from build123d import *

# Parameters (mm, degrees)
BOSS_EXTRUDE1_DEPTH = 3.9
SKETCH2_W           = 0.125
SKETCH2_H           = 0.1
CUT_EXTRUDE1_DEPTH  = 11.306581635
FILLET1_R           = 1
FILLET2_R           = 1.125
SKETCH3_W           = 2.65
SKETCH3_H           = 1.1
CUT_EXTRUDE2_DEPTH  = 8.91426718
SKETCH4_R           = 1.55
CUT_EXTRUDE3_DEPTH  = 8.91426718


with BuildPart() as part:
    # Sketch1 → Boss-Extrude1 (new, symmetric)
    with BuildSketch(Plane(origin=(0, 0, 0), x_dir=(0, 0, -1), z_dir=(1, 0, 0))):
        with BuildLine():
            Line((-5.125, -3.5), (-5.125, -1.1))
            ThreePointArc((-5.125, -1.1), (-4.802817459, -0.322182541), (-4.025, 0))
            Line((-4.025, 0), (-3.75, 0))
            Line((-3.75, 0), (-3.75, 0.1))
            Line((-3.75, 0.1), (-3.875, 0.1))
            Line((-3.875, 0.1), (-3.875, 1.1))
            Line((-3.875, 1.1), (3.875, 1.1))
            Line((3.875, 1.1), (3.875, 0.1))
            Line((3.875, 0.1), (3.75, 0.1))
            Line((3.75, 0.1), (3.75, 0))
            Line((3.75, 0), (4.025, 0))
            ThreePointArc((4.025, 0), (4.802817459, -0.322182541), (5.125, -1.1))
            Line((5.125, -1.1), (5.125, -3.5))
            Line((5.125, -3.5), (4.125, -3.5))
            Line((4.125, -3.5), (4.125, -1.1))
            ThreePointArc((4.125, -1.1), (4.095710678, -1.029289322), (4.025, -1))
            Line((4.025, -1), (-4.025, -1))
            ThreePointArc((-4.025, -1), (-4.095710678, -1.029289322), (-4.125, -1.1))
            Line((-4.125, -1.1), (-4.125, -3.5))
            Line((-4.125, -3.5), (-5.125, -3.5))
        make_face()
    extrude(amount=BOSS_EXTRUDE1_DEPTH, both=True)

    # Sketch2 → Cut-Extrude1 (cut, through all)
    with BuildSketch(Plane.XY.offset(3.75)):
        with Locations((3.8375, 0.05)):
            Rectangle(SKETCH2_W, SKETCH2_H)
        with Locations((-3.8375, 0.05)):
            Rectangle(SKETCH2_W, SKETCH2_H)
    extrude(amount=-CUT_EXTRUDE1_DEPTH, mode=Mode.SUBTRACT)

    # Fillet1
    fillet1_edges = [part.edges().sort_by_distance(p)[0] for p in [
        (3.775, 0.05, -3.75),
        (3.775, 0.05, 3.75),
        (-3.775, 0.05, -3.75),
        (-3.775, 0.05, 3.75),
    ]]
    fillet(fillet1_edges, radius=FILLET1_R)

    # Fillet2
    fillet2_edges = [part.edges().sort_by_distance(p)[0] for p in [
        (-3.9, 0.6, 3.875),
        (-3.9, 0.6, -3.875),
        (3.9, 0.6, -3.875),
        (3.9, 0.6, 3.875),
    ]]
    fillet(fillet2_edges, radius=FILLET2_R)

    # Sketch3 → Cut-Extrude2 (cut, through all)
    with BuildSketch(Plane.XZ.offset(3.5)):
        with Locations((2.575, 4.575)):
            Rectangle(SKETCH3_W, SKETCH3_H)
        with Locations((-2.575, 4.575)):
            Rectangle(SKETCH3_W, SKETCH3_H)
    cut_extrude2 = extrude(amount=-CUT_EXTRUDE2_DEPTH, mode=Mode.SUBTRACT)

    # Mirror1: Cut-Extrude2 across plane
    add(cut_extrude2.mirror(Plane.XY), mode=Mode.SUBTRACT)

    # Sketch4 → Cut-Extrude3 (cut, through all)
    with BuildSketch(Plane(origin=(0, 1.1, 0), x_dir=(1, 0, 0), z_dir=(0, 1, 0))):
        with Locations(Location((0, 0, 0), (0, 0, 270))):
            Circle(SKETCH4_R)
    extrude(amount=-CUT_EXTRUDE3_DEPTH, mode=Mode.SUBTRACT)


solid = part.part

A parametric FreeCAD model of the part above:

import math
import FreeCAD as App
import Part
import Sketcher
from FreeCAD import Vector


def edges_at(feature, points):
    """Names of the edges that pass closest to the given points."""
    edges = feature.Shape.Edges
    near = lambda p: min(range(len(edges)), key=lambda i: edges[i].distToShape(Part.Vertex(*p))[0])
    return sorted({f"Edge{near(p) + 1}" for p in points})

doc = App.newDocument("Part")
params = doc.addObject("Spreadsheet::Sheet", "Params")
for row, (alias, value) in enumerate([
    ("sketch1_radius", "0.1 mm"),
    ("sketch1_radius2", "1.1 mm"),
    ("sketch1_width", "2.4 mm"),
    ("sketch1_width2", "0.1 mm"),
    ("sketch1_height", "8.05 mm"),
    ("pad1_length", "7.8 mm"),
    ("sketch2_height", "0.1 mm"),
    ("fillet_radius", "1 mm"),
    ("fillet2_radius", "1.125 mm"),
    ("sketch3_height", "1.1 mm"),
    ("sketch3_width", "2.65 mm"),
    ("sketch4_diameter", "3.1 mm"),
], start=1):
    params.set(f"A{row}", alias)
    params.set(f"B{row}", "=" + value)
    params.setAlias(f"B{row}", alias)

body = doc.addObject("PartDesign::Body", "Body")

# Sketch on YZ plane
sketch1 = body.newObject("Sketcher::SketchObject", "Sketch")
sketch1.AttachmentSupport = (doc.getObject("YZ_Plane"), [""])
sketch1.MapMode = "FlatFace"
sketch1.addGeometry(Part.LineSegment(Vector(-1.1, 5.125, 0), Vector(-3.5, 5.125, 0)), False)
sketch1.addGeometry(Part.LineSegment(Vector(-3.5, 5.125, 0), Vector(-3.5, 4.125, 0)), False)
sketch1.addGeometry(Part.LineSegment(Vector(-3.5, 4.125, 0), Vector(-1.1, 4.125, 0)), False)
sketch1.addGeometry(Part.ArcOfCircle(Part.Circle(Vector(-1.1, 4.025, 0), Vector(0, 0, 1), 0.1), math.radians(0), math.radians(90)), False)
sketch1.addGeometry(Part.LineSegment(Vector(-1, 4.025, 0), Vector(-1, -4.025, 0)), False)
sketch1.addGeometry(Part.ArcOfCircle(Part.Circle(Vector(-1.1, -4.025, 0), Vector(0, 0, 1), 0.1), math.radians(-90), math.radians(0)), False)
sketch1.addGeometry(Part.LineSegment(Vector(-1.1, -4.125, 0), Vector(-3.5, -4.125, 0)), False)
sketch1.addGeometry(Part.LineSegment(Vector(-3.5, -4.125, 0), Vector(-3.5, -5.125, 0)), False)
sketch1.addGeometry(Part.LineSegment(Vector(-3.5, -5.125, 0), Vector(-1.1, -5.125, 0)), False)
sketch1.addGeometry(Part.ArcOfCircle(Part.Circle(Vector(-1.1, -4.025, 0), Vector(0, 0, 1), 1.1), math.radians(-90), math.radians(0)), False)
sketch1.addGeometry(Part.LineSegment(Vector(0, -4.025, 0), Vector(0, -3.75, 0)), False)
sketch1.addGeometry(Part.LineSegment(Vector(0, -3.75, 0), Vector(0.1, -3.75, 0)), False)
sketch1.addGeometry(Part.LineSegment(Vector(0.1, -3.75, 0), Vector(0.1, -3.875, 0)), False)
sketch1.addGeometry(Part.LineSegment(Vector(0.1, -3.875, 0), Vector(1.1, -3.875, 0)), False)
sketch1.addGeometry(Part.LineSegment(Vector(1.1, -3.875, 0), Vector(1.1, 3.875, 0)), False)
sketch1.addGeometry(Part.LineSegment(Vector(1.1, 3.875, 0), Vector(0.1, 3.875, 0)), False)
sketch1.addGeometry(Part.LineSegment(Vector(0.1, 3.875, 0), Vector(0.1, 3.75, 0)), False)
sketch1.addGeometry(Part.LineSegment(Vector(0.1, 3.75, 0), Vector(0, 3.75, 0)), False)
sketch1.addGeometry(Part.LineSegment(Vector(0, 3.75, 0), Vector(0, 4.025, 0)), False)
sketch1.addGeometry(Part.ArcOfCircle(Part.Circle(Vector(-1.1, 4.025, 0), Vector(0, 0, 1), 1.1), math.radians(0), math.radians(90)), False)
sketch1.addConstraint(Sketcher.Constraint("Coincident", 0, 2, 1, 1))
sketch1.addConstraint(Sketcher.Constraint("Coincident", 1, 2, 2, 1))
sketch1.addConstraint(Sketcher.Constraint("Tangent", 2, 2, 3, 2))
sketch1.addConstraint(Sketcher.Constraint("Tangent", 3, 1, 4, 1))
sketch1.addConstraint(Sketcher.Constraint("Tangent", 4, 2, 5, 2))
sketch1.addConstraint(Sketcher.Constraint("Tangent", 5, 1, 6, 1))
sketch1.addConstraint(Sketcher.Constraint("Coincident", 6, 2, 7, 1))
sketch1.addConstraint(Sketcher.Constraint("Coincident", 7, 2, 8, 1))
sketch1.addConstraint(Sketcher.Constraint("Tangent", 8, 2, 9, 1))
sketch1.addConstraint(Sketcher.Constraint("Tangent", 9, 2, 10, 1))
sketch1.addConstraint(Sketcher.Constraint("Coincident", 10, 2, 11, 1))
sketch1.addConstraint(Sketcher.Constraint("Coincident", 11, 2, 12, 1))
sketch1.addConstraint(Sketcher.Constraint("Coincident", 12, 2, 13, 1))
sketch1.addConstraint(Sketcher.Constraint("Coincident", 13, 2, 14, 1))
sketch1.addConstraint(Sketcher.Constraint("Coincident", 14, 2, 15, 1))
sketch1.addConstraint(Sketcher.Constraint("Coincident", 15, 2, 16, 1))
sketch1.addConstraint(Sketcher.Constraint("Coincident", 16, 2, 17, 1))
sketch1.addConstraint(Sketcher.Constraint("Coincident", 17, 2, 18, 1))
sketch1.addConstraint(Sketcher.Constraint("Tangent", 18, 2, 19, 1))
sketch1.addConstraint(Sketcher.Constraint("Tangent", 19, 2, 0, 1))
sketch1.addConstraint(Sketcher.Constraint("Horizontal", 0))
sketch1.addConstraint(Sketcher.Constraint("Vertical", 1))
sketch1.addConstraint(Sketcher.Constraint("Horizontal", 2))
sketch1.addConstraint(Sketcher.Constraint("Vertical", 4))
sketch1.addConstraint(Sketcher.Constraint("Horizontal", 6))
sketch1.addConstraint(Sketcher.Constraint("Vertical", 7))
sketch1.addConstraint(Sketcher.Constraint("Horizontal", 8))
sketch1.addConstraint(Sketcher.Constraint("Vertical", 10))
sketch1.addConstraint(Sketcher.Constraint("Horizontal", 11))
sketch1.addConstraint(Sketcher.Constraint("Vertical", 12))
sketch1.addConstraint(Sketcher.Constraint("Horizontal", 13))
sketch1.addConstraint(Sketcher.Constraint("Vertical", 14))
sketch1.addConstraint(Sketcher.Constraint("Horizontal", 15))
sketch1.addConstraint(Sketcher.Constraint("Vertical", 16))
sketch1.addConstraint(Sketcher.Constraint("Horizontal", 17))
sketch1.addConstraint(Sketcher.Constraint("Vertical", 18))
sketch1.addConstraint(Sketcher.Constraint("Coincident", 9, 3, 5, 3))
sketch1.addConstraint(Sketcher.Constraint("Coincident", 19, 3, 3, 3))
sketch1.addConstraint(Sketcher.Constraint("Equal", 3, 5))
sketch1.addConstraint(Sketcher.Constraint("Equal", 9, 19))
sketch1.addConstraint(Sketcher.Constraint("Symmetric", 10, 2, 17, 2, -1, 1))
sketch1.addConstraint(Sketcher.Constraint("Symmetric", 1, 2, 6, 2, -1))
sketch1.addConstraint(Sketcher.Constraint("Symmetric", 12, 2, 15, 2, -1))
sketch1.addConstraint(Sketcher.Constraint("Equal", 15, 1))
sketch1.addConstraint(Sketcher.Constraint("Radius", 3, 0.1))
sketch1.addConstraint(Sketcher.Constraint("Radius", 9, 1.1))
sketch1.addConstraint(Sketcher.Constraint("DistanceX", 0, 2, 0, 1, 2.4))
sketch1.addConstraint(Sketcher.Constraint("DistanceX", 11, 1, 11, 2, 0.1))
sketch1.addConstraint(Sketcher.Constraint("DistanceY", 4, 2, 4, 1, 8.05))
sketch1.addConstraint(Sketcher.Constraint("DistanceY", 14, 1, 14, 2, 7.75))
sketch1.addConstraint(Sketcher.Constraint("DistanceY", 10, 1, 10, 2, 0.275))
sketch1.setExpression("Constraints[44]", "Params.sketch1_radius")
sketch1.setExpression("Constraints[45]", "Params.sketch1_radius2")
sketch1.setExpression("Constraints[46]", "Params.sketch1_width")
sketch1.setExpression("Constraints[47]", "Params.sketch1_width2")
sketch1.setExpression("Constraints[48]", "Params.sketch1_height")
pad1 = body.newObject("PartDesign::Pad", "Pad")
pad1.Profile = sketch1
pad1.setExpression("Length", "Params.pad1_length")
pad1.Midplane = True

# Sketch on XY plane
sketch2 = body.newObject("Sketcher::SketchObject", "Sketch001")
sketch2.AttachmentSupport = (doc.getObject("XY_Plane"), [""])
sketch2.MapMode = "FlatFace"
sketch2.AttachmentOffset = App.Placement(Vector(0, 0, 3.75), App.Rotation())
sketch2.addGeometry(Part.LineSegment(Vector(3.775, 0.1, 0), Vector(3.775, 0, 0)), False)
sketch2.addGeometry(Part.LineSegment(Vector(3.775, 0, 0), Vector(3.9, 0, 0)), False)
sketch2.addGeometry(Part.LineSegment(Vector(3.9, 0, 0), Vector(3.9, 0.1, 0)), False)
sketch2.addGeometry(Part.LineSegment(Vector(3.9, 0.1, 0), Vector(3.775, 0.1, 0)), False)
sketch2.addGeometry(Part.LineSegment(Vector(-3.9, 0.1, 0), Vector(-3.9, 0, 0)), False)
sketch2.addGeometry(Part.LineSegment(Vector(-3.9, 0, 0), Vector(-3.775, 0, 0)), False)
sketch2.addGeometry(Part.LineSegment(Vector(-3.775, 0, 0), Vector(-3.775, 0.1, 0)), False)
sketch2.addGeometry(Part.LineSegment(Vector(-3.775, 0.1, 0), Vector(-3.9, 0.1, 0)), False)
sketch2.addConstraint(Sketcher.Constraint("Coincident", 0, 2, 1, 1))
sketch2.addConstraint(Sketcher.Constraint("Coincident", 1, 2, 2, 1))
sketch2.addConstraint(Sketcher.Constraint("Coincident", 2, 2, 3, 1))
sketch2.addConstraint(Sketcher.Constraint("Coincident", 3, 2, 0, 1))
sketch2.addConstraint(Sketcher.Constraint("Coincident", 4, 2, 5, 1))
sketch2.addConstraint(Sketcher.Constraint("Coincident", 5, 2, 6, 1))
sketch2.addConstraint(Sketcher.Constraint("Coincident", 6, 2, 7, 1))
sketch2.addConstraint(Sketcher.Constraint("Coincident", 7, 2, 4, 1))
sketch2.addConstraint(Sketcher.Constraint("Vertical", 0))
sketch2.addConstraint(Sketcher.Constraint("Horizontal", 1))
sketch2.addConstraint(Sketcher.Constraint("Vertical", 2))
sketch2.addConstraint(Sketcher.Constraint("Horizontal", 3))
sketch2.addConstraint(Sketcher.Constraint("Vertical", 4))
sketch2.addConstraint(Sketcher.Constraint("Horizontal", 5))
sketch2.addConstraint(Sketcher.Constraint("Vertical", 6))
sketch2.addConstraint(Sketcher.Constraint("Horizontal", 7))
sketch2.addConstraint(Sketcher.Constraint("Symmetric", 1, 2, 4, 2, -1, 1))
sketch2.addConstraint(Sketcher.Constraint("Symmetric", 0, 2, 5, 2, -2))
sketch2.addConstraint(Sketcher.Constraint("Horizontal", 3, 2, 6, 2))
sketch2.addConstraint(Sketcher.Constraint("DistanceY", 0, 2, 0, 1, 0.1))
sketch2.addConstraint(Sketcher.Constraint("DistanceX", -1, 1, 1, 2, 3.9))
sketch2.addConstraint(Sketcher.Constraint("DistanceX", 1, 1, 1, 2, 0.125))
sketch2.setExpression("Constraints[19]", "Params.sketch2_height")
pocket1 = body.newObject("PartDesign::Pocket", "Pocket")
pocket1.Profile = sketch2
pocket1.Type = "ThroughAll"
doc.recompute()

fillet = body.newObject("PartDesign::Fillet", "Fillet")
fillet.Base = (pocket1, edges_at(pocket1, [
    (3.775, 0.05, -3.75),
    (3.775, 0.05, 3.75),
    (-3.775, 0.05, -3.75),
    (-3.775, 0.05, 3.75),
]))
fillet.setExpression("Radius", "Params.fillet_radius")
doc.recompute()

fillet2 = body.newObject("PartDesign::Fillet", "Fillet001")
fillet2.Base = (fillet, edges_at(fillet, [
    (-3.9, 0.6, 3.875),
    (-3.9, 0.6, -3.875),
    (3.9, 0.6, -3.875),
    (3.9, 0.6, 3.875),
]))
fillet2.setExpression("Radius", "Params.fillet2_radius")

# Sketch on XZ plane
sketch3 = body.newObject("Sketcher::SketchObject", "Sketch002")
sketch3.AttachmentSupport = (doc.getObject("XZ_Plane"), [""])
sketch3.MapMode = "FlatFace"
sketch3.AttachmentOffset = App.Placement(Vector(0, 0, 3.5), App.Rotation())
sketch3.addGeometry(Part.LineSegment(Vector(1.25, 5.125, 0), Vector(1.25, 4.025, 0)), False)
sketch3.addGeometry(Part.LineSegment(Vector(1.25, 4.025, 0), Vector(3.9, 4.025, 0)), False)
sketch3.addGeometry(Part.LineSegment(Vector(3.9, 4.025, 0), Vector(3.9, 5.125, 0)), False)
sketch3.addGeometry(Part.LineSegment(Vector(3.9, 5.125, 0), Vector(1.25, 5.125, 0)), False)
sketch3.addGeometry(Part.LineSegment(Vector(-3.9, 5.125, 0), Vector(-3.9, 4.025, 0)), False)
sketch3.addGeometry(Part.LineSegment(Vector(-3.9, 4.025, 0), Vector(-1.25, 4.025, 0)), False)
sketch3.addGeometry(Part.LineSegment(Vector(-1.25, 4.025, 0), Vector(-1.25, 5.125, 0)), False)
sketch3.addGeometry(Part.LineSegment(Vector(-1.25, 5.125, 0), Vector(-3.9, 5.125, 0)), False)
sketch3.addConstraint(Sketcher.Constraint("Coincident", 0, 2, 1, 1))
sketch3.addConstraint(Sketcher.Constraint("Coincident", 1, 2, 2, 1))
sketch3.addConstraint(Sketcher.Constraint("Coincident", 2, 2, 3, 1))
sketch3.addConstraint(Sketcher.Constraint("Coincident", 3, 2, 0, 1))
sketch3.addConstraint(Sketcher.Constraint("Coincident", 4, 2, 5, 1))
sketch3.addConstraint(Sketcher.Constraint("Coincident", 5, 2, 6, 1))
sketch3.addConstraint(Sketcher.Constraint("Coincident", 6, 2, 7, 1))
sketch3.addConstraint(Sketcher.Constraint("Coincident", 7, 2, 4, 1))
sketch3.addConstraint(Sketcher.Constraint("Vertical", 0))
sketch3.addConstraint(Sketcher.Constraint("Horizontal", 1))
sketch3.addConstraint(Sketcher.Constraint("Vertical", 2))
sketch3.addConstraint(Sketcher.Constraint("Horizontal", 3))
sketch3.addConstraint(Sketcher.Constraint("Vertical", 4))
sketch3.addConstraint(Sketcher.Constraint("Horizontal", 5))
sketch3.addConstraint(Sketcher.Constraint("Vertical", 6))
sketch3.addConstraint(Sketcher.Constraint("Horizontal", 7))
sketch3.addConstraint(Sketcher.Constraint("Symmetric", 1, 2, 4, 2, -2))
sketch3.addConstraint(Sketcher.Constraint("Symmetric", 3, 2, 6, 2, -2))
sketch3.addConstraint(Sketcher.Constraint("DistanceY", 0, 2, 0, 1, 1.1))
sketch3.addConstraint(Sketcher.Constraint("DistanceX", 1, 1, 1, 2, 2.65))
sketch3.addConstraint(Sketcher.Constraint("DistanceX", -1, 1, 1, 2, 3.9))
sketch3.addConstraint(Sketcher.Constraint("DistanceY", -1, 1, 0, 2, 4.025))
sketch3.setExpression("Constraints[18]", "Params.sketch3_height")
sketch3.setExpression("Constraints[19]", "Params.sketch3_width")
pocket2 = body.newObject("PartDesign::Pocket", "Pocket001")
pocket2.Profile = sketch3
pocket2.Type = "ThroughAll"
doc.recompute()

mirrored = body.newObject("PartDesign::Mirrored", "Mirrored")
mirrored.Originals = [pocket2]
mirrored.MirrorPlane = (doc.getObject("XY_Plane"), [""])
body.Tip = mirrored

# Sketch on XZ plane
sketch4 = body.newObject("Sketcher::SketchObject", "Sketch003")
sketch4.AttachmentSupport = (doc.getObject("XZ_Plane"), [""])
sketch4.MapMode = "FlatFace"
sketch4.AttachmentOffset = App.Placement(Vector(0, 0, -1.1), App.Rotation())
sketch4.addGeometry(Part.Circle(Vector(0, 0, 0), Vector(0, 0, 1), 1.55), False)
sketch4.addConstraint(Sketcher.Constraint("Coincident", 0, 3, -1, 1))
sketch4.addConstraint(Sketcher.Constraint("Diameter", 0, 3.1))
sketch4.setExpression("Constraints[1]", "Params.sketch4_diameter")
pocket3 = body.newObject("PartDesign::Pocket", "Pocket002")
pocket3.Profile = sketch4
pocket3.Type = "ThroughAll"
pocket3.Reversed = True

doc.recompute()
